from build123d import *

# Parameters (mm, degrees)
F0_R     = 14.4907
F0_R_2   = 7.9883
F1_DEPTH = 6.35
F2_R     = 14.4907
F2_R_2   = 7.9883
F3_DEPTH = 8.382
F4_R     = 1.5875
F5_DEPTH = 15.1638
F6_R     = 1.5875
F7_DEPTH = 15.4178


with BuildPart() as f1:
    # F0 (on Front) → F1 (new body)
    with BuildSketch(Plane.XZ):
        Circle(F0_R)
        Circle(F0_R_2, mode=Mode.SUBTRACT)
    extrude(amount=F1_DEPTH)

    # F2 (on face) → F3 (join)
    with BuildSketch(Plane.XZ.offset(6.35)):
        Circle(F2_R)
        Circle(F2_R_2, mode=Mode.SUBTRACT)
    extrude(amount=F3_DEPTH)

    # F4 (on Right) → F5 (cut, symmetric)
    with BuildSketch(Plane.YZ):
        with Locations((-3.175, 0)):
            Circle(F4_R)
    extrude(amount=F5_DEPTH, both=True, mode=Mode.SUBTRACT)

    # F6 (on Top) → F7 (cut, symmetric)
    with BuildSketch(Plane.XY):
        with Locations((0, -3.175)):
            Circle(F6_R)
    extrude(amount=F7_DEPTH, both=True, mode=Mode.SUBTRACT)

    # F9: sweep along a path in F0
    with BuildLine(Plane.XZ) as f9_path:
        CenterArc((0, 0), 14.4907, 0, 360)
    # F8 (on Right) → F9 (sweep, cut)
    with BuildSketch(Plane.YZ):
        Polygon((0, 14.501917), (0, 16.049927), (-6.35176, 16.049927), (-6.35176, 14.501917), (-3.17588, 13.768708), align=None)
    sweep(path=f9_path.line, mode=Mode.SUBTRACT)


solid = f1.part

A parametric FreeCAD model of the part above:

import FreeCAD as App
import Part
import Sketcher
Q = App.Units.Quantity


def add_polygon(sketch, points):
    """Adds a closed chain of lines whose ends are joined by coincident constraints."""
    first, n = sketch.GeometryCount, len(points)
    for a, b in zip(points, points[1:] + points[:1]):
        sketch.addGeometry(Part.LineSegment(App.Vector(*a, 0), App.Vector(*b, 0)), False)
    for i in range(n):
        sketch.addConstraint(Sketcher.Constraint("Coincident", first + i, 2, first + (i + 1) % n, 1))

doc = App.newDocument("Part")
body = doc.addObject("PartDesign::Body", "Body")

# Sketch on XZ plane
sketch1 = doc.addObject("Sketcher::SketchObject", "Sketch")
body.addObject(sketch1)
sketch1.AttachmentSupport = (doc.XZ_Plane, [""])
sketch1.MapMode = "FlatFace"
sketch1.addGeometry([
    Part.Circle(App.Vector(0, 0, 0), App.Vector(0, 0, 1), 14),
    Part.Circle(App.Vector(0, 0, 0), App.Vector(0, 0, 1), 8),
], False)
sketch1.addConstraint([
    Sketcher.Constraint("Coincident", 0, 3, -1, 1),
    Sketcher.Constraint("Coincident", 1, 3, -1, 1),
    Sketcher.Constraint("Diameter", 0, Q("1.141 in")),
    Sketcher.Constraint("Diameter", 1, Q("0.629 in")),
])
pad1 = doc.addObject("PartDesign::Pad", "Pad")
body.addObject(pad1)
pad1.Profile = sketch1
pad1.Length = Q("0.25 in")

# Sketch on XZ plane
sketch2 = doc.addObject("Sketcher::SketchObject", "Sketch001")
body.addObject(sketch2)
sketch2.AttachmentSupport = (doc.XZ_Plane, [""])
sketch2.MapMode = "FlatFace"
sketch2.AttachmentOffset = App.Placement(App.Vector(0, 0, 0.25 * 25.4), App.Rotation())
sketch2.addGeometry([
    Part.Circle(App.Vector(0, 0, 0), App.Vector(0, 0, 1), 14),
    Part.Circle(App.Vector(0, 0, 0), App.Vector(0, 0, 1), 8),
], False)
sketch2.addConstraint([
    Sketcher.Constraint("Coincident", 0, 3, -1, 1),
    Sketcher.Constraint("Coincident", 1, 3, -1, 1),
    Sketcher.Constraint("Diameter", 0, Q("1.141 in")),
    Sketcher.Constraint("Diameter", 1, Q("0.629 in")),
])
pad2 = doc.addObject("PartDesign::Pad", "Pad001")
body.addObject(pad2)
pad2.Profile = sketch2
pad2.Length = Q("0.33 in")

# Sketch on YZ plane
sketch3 = doc.addObject("Sketcher::SketchObject", "Sketch002")
body.addObject(sketch3)
sketch3.AttachmentSupport = (doc.YZ_Plane, [""])
sketch3.MapMode = "FlatFace"
sketch3.addGeometry(Part.Circle(App.Vector(-3.2, 0, 0), App.Vector(0, 0, 1), 1.6), False)
sketch3.addConstraint([
    Sketcher.Constraint("PointOnObject", 0, 3, -1),
    Sketcher.Constraint("Diameter", 0, Q("0.125 in")),
    Sketcher.Constraint("DistanceX", 0, 3, -1, 1, Q("0.125 in")),
])
pocket1 = doc.addObject("PartDesign::Pocket", "Pocket")
body.addObject(pocket1)
pocket1.Profile = sketch3
pocket1.Length = Q("1.194 in")
pocket1.Midplane = True

# Sketch on XY plane
sketch4 = doc.addObject("Sketcher::SketchObject", "Sketch003")
body.addObject(sketch4)
sketch4.AttachmentSupport = (doc.XY_Plane, [""])
sketch4.MapMode = "FlatFace"
sketch4.addGeometry(Part.Circle(App.Vector(0, -3.2, 0), App.Vector(0, 0, 1), 1.6), False)
sketch4.addConstraint([
    Sketcher.Constraint("PointOnObject", 0, 3, -2),
    Sketcher.Constraint("Diameter", 0, Q("0.125 in")),
    Sketcher.Constraint("DistanceY", 0, 3, -1, 1, Q("0.125 in")),
])
pocket2 = doc.addObject("PartDesign::Pocket", "Pocket001")
body.addObject(pocket2)
pocket2.Profile = sketch4
pocket2.Length = Q("1.214 in")
pocket2.Midplane = True

# Sketch on YZ plane
sketch5 = doc.addObject("Sketcher::SketchObject", "Sketch004")
body.addObject(sketch5)
sketch5.AttachmentSupport = (doc.YZ_Plane, [""])
sketch5.MapMode = "FlatFace"
add_polygon(sketch5, [(0, 14.5), (0, 16), (-6.4, 16), (-6.4, 14.5), (-3.2, 13.8)])  # lines 0-4
sketch5.addConstraint([
    Sketcher.Constraint("Vertical", 0),
    Sketcher.Constraint("Horizontal", 1),
    Sketcher.Constraint("Vertical", 2),
    Sketcher.Constraint("PointOnObject", 0, 2, -2),
    Sketcher.Constraint("Horizontal", 2, 2, 4, 2),
    Sketcher.Constraint("Equal", 3, 4),
    Sketcher.Constraint("Angle", 3, Q("-12.999989 deg")),
    Sketcher.Constraint("DistanceX", 1, 2, 1, 1, Q("6.35176 mm")),
    Sketcher.Constraint("DistanceY", 0, 1, 0, 2, Q("1.54801 mm")),
    Sketcher.Constraint("DistanceY", -1, 1, 0, 2, Q("16.049927 mm")),
])

# Sketch on XZ plane
sketch6 = doc.addObject("Sketcher::SketchObject", "Sketch005")
body.addObject(sketch6)
sketch6.AttachmentSupport = (doc.XZ_Plane, [""])
sketch6.MapMode = "FlatFace"
sketch6.addGeometry(Part.Circle(App.Vector(0, 0, 0), App.Vector(0, 0, 1), 14), False)
sketch6.addConstraint([
    Sketcher.Constraint("Coincident", 0, 3, -1, 1),
    Sketcher.Constraint("Diameter", 0, Q("1.141 in")),
])
doc.recompute()

subtractivepipe = doc.addObject("PartDesign::SubtractivePipe", "SubtractivePipe")
body.addObject(subtractivepipe)
subtractivepipe.Profile = sketch5
subtractivepipe.Spine = (sketch6, ["Edge1"])

doc.recompute()
